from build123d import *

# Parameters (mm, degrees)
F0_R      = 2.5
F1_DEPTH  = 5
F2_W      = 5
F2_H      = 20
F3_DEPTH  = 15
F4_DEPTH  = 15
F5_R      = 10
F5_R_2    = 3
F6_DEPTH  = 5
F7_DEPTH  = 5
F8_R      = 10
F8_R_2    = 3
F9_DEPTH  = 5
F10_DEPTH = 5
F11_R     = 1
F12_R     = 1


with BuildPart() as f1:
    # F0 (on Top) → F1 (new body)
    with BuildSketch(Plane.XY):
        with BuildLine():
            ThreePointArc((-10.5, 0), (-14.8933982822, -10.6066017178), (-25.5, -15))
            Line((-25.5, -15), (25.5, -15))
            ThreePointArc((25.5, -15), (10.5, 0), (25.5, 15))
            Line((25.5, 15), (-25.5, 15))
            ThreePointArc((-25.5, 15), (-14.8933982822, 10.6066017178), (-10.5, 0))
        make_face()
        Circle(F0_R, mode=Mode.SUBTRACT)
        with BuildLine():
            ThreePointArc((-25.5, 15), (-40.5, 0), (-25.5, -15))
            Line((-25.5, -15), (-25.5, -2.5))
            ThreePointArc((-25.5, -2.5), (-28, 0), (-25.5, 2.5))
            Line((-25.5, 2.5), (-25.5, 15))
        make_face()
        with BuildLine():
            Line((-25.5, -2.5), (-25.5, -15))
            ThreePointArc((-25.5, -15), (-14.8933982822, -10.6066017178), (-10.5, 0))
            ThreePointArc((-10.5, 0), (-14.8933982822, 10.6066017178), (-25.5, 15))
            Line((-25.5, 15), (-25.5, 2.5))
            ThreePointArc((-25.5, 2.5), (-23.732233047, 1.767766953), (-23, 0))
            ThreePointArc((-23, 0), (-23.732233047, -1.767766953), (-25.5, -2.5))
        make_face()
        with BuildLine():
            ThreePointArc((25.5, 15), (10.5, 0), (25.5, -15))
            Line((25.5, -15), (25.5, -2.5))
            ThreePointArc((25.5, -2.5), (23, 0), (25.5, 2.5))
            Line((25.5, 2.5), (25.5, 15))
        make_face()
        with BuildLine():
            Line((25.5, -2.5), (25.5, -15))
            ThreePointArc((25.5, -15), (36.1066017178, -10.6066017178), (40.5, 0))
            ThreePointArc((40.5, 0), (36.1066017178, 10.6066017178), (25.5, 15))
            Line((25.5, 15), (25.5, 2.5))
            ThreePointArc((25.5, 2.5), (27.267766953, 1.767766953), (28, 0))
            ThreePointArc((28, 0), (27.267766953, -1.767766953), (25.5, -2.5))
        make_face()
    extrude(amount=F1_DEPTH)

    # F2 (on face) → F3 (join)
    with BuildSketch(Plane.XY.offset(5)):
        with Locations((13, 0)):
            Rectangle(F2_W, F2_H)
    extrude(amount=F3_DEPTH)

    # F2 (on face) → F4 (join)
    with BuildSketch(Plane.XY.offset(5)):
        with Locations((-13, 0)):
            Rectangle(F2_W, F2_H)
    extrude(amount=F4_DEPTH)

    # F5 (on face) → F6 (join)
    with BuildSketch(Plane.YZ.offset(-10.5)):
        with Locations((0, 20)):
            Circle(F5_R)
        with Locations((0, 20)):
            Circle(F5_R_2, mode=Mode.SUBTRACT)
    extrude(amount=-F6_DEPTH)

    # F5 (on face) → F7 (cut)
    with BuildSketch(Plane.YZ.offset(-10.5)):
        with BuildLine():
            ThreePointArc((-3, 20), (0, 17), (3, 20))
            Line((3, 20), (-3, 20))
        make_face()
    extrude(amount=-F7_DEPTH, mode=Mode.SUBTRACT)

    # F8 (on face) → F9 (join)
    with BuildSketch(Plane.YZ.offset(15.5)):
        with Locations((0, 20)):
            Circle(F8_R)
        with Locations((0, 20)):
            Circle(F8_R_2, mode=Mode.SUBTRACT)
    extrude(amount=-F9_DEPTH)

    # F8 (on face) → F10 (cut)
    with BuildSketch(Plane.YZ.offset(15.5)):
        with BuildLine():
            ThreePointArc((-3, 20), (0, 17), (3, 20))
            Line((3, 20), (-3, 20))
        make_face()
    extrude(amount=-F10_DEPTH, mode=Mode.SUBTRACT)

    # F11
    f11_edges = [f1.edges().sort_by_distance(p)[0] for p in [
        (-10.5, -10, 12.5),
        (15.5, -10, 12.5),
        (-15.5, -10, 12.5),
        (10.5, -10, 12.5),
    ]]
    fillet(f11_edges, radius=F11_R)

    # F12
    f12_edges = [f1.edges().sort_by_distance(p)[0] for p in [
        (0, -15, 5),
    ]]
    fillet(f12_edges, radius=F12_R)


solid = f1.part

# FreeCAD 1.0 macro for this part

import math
import FreeCAD as App
import Part
import Sketcher
Q = App.Units.Quantity


def edges_at(feature, points):
    """Names of the edges that pass closest to the given points."""
    edges = feature.Shape.Edges
    near = lambda p: min(range(len(edges)), key=lambda i: edges[i].distToShape(Part.Vertex(*p))[0])
    return sorted({f"Edge{near(p) + 1}" for p in points})

doc = App.newDocument("Part")
body = doc.addObject("PartDesign::Body", "Body")

sketch1 = doc.addObject("Sketcher::SketchObject", "Sketch")
body.addObject(sketch1)
sketch1.AttachmentSupport = (doc.XY_Plane, [""])
sketch1.MapMode = "FlatFace"
sketch1.addGeometry(Part.LineSegment(App.Vector(-25.5, -15, 0), App.Vector(25.5, -15, 0)), False)
sketch1.addGeometry(Part.ArcOfCircle(Part.Circle(App.Vector(25.5, 0, 0), App.Vector(0, 0, 1), 15), math.radians(-90), math.radians(90)), False)
sketch1.addGeometry(Part.LineSegment(App.Vector(25.5, 15, 0), App.Vector(-25.5, 15, 0)), False)
sketch1.addGeometry(Part.ArcOfCircle(Part.Circle(App.Vector(-25.5, 0, 0), App.Vector(0, 0, 1), 15), math.radians(90), math.radians(270)), False)
sketch1.addGeometry(Part.ArcOfCircle(Part.Circle(App.Vector(25.5, 0, 0), App.Vector(0, 0, 1), 2.5), math.radians(90), math.radians(270)), False)
sketch1.addGeometry(Part.ArcOfCircle(Part.Circle(App.Vector(25.5, 0, 0), App.Vector(0, 0, 1), 2.5), math.radians(0), math.radians(90)), False)
sketch1.addGeometry(Part.ArcOfCircle(Part.Circle(App.Vector(25.5, 0, 0), App.Vector(0, 0, 1), 2.5), math.radians(-90), math.radians(0)), False)
sketch1.addGeometry(Part.Circle(App.Vector(0, 0, 0), App.Vector(0, 0, 1), 2.5), False)
sketch1.addGeometry(Part.ArcOfCircle(Part.Circle(App.Vector(-25.5, 0, 0), App.Vector(0, 0, 1), 2.5), math.radians(-90), math.radians(0)), False)
sketch1.addGeometry(Part.ArcOfCircle(Part.Circle(App.Vector(-25.5, 0, 0), App.Vector(0, 0, 1), 2.5), math.radians(90), math.radians(270)), False)
sketch1.addGeometry(Part.ArcOfCircle(Part.Circle(App.Vector(-25.5, 0, 0), App.Vector(0, 0, 1), 2.5), math.radians(0), math.radians(90)), False)
sketch1.addConstraint(Sketcher.Constraint("Tangent", 0, 2, 1, 1))
sketch1.addConstraint(Sketcher.Constraint("Tangent", 1, 2, 2, 1))
sketch1.addConstraint(Sketcher.Constraint("Tangent", 2, 2, 3, 1))
sketch1.addConstraint(Sketcher.Constraint("Tangent", 3, 2, 0, 1))
sketch1.addConstraint(Sketcher.Constraint("Tangent", 4, 1, 5, 2))
sketch1.addConstraint(Sketcher.Constraint("Tangent", 5, 1, 6, 2))
sketch1.addConstraint(Sketcher.Constraint("Tangent", 6, 1, 4, 2))
sketch1.addConstraint(Sketcher.Constraint("Tangent", 8, 1, 9, 2))
sketch1.addConstraint(Sketcher.Constraint("Tangent", 9, 1, 10, 2))
sketch1.addConstraint(Sketcher.Constraint("Tangent", 10, 1, 8, 2))
sketch1.addConstraint(Sketcher.Constraint("Horizontal", 0))
sketch1.addConstraint(Sketcher.Constraint("Horizontal", 2))
sketch1.addConstraint(Sketcher.Constraint("Coincident", 7, 3, -1, 1))
sketch1.addConstraint(Sketcher.Constraint("Coincident", 4, 3, 1, 3))
sketch1.addConstraint(Sketcher.Constraint("Coincident", 8, 3, 3, 3))
sketch1.addConstraint(Sketcher.Constraint("Equal", 6, 7))
sketch1.addConstraint(Sketcher.Constraint("Equal", 7, 8))
sketch1.addConstraint(Sketcher.Constraint("Symmetric", 1, 3, 3, 3, -1, 1))
sketch1.addConstraint(Sketcher.Constraint("PointOnObject", 5, 1, -1))
sketch1.addConstraint(Sketcher.Constraint("PointOnObject", 10, 1, -1))
sketch1.addConstraint(Sketcher.Constraint("Vertical", 1, 2, 4, 1))
sketch1.addConstraint(Sketcher.Constraint("Vertical", 4, 1, 6, 1))
sketch1.addConstraint(Sketcher.Constraint("Vertical", 3, 2, 8, 1))
sketch1.addConstraint(Sketcher.Constraint("Vertical", 8, 1, 9, 1))
sketch1.addConstraint(Sketcher.Constraint("Diameter", 7, Q("5 mm")))
sketch1.addConstraint(Sketcher.Constraint("Radius", 1, Q("15 mm")))
sketch1.addConstraint(Sketcher.Constraint("DistanceX", 0, 1, 0, 2, Q("51 mm")))
pad1 = doc.addObject("PartDesign::Pad", "Pad")
body.addObject(pad1)
pad1.Profile = sketch1
pad1.Length = 5

sketch2 = doc.addObject("Sketcher::SketchObject", "Sketch001")
body.addObject(sketch2)
sketch2.AttachmentSupport = (doc.XY_Plane, [""])
sketch2.MapMode = "FlatFace"
sketch2.AttachmentOffset = App.Placement(App.Vector(0, 0, 5), App.Rotation())
sketch2.addGeometry(Part.LineSegment(App.Vector(10.5, 10, 0), App.Vector(10.5, -10, 0)), False)
sketch2.addGeometry(Part.LineSegment(App.Vector(10.5, -10, 0), App.Vector(15.5, -10, 0)), False)
sketch2.addGeometry(Part.LineSegment(App.Vector(15.5, -10, 0), App.Vector(15.5, 10, 0)), False)
sketch2.addGeometry(Part.LineSegment(App.Vector(15.5, 10, 0), App.Vector(10.5, 10, 0)), False)
sketch2.addConstraint(Sketcher.Constraint("Coincident", 0, 2, 1, 1))
sketch2.addConstraint(Sketcher.Constraint("Coincident", 1, 2, 2, 1))
sketch2.addConstraint(Sketcher.Constraint("Coincident", 2, 2, 3, 1))
sketch2.addConstraint(Sketcher.Constraint("Coincident", 3, 2, 0, 1))
sketch2.addConstraint(Sketcher.Constraint("Vertical", 0))
sketch2.addConstraint(Sketcher.Constraint("Horizontal", 1))
sketch2.addConstraint(Sketcher.Constraint("Vertical", 2))
sketch2.addConstraint(Sketcher.Constraint("Horizontal", 3))
sketch2.addConstraint(Sketcher.Constraint("DistanceX", 1, 1, 1, 2, Q("5 mm")))
sketch2.addConstraint(Sketcher.Constraint("DistanceY", 0, 2, 0, 1, Q("20 mm")))
sketch2.addConstraint(Sketcher.Constraint("DistanceY", 0, 2, -1, 1, Q("10 mm")))
sketch2.addConstraint(Sketcher.Constraint("DistanceX", -1, 1, 0, 2, Q("10.5 mm")))
pad2 = doc.addObject("PartDesign::Pad", "Pad001")
body.addObject(pad2)
pad2.Profile = sketch2
pad2.Length = 15

sketch3 = doc.addObject("Sketcher::SketchObject", "Sketch002")
body.addObject(sketch3)
sketch3.AttachmentSupport = (doc.XY_Plane, [""])
sketch3.MapMode = "FlatFace"
sketch3.AttachmentOffset = App.Placement(App.Vector(0, 0, 5), App.Rotation())
sketch3.addGeometry(Part.LineSegment(App.Vector(-15.5, 10, 0), App.Vector(-15.5, -10, 0)), False)
sketch3.addGeometry(Part.LineSegment(App.Vector(-15.5, -10, 0), App.Vector(-10.5, -10, 0)), False)
sketch3.addGeometry(Part.LineSegment(App.Vector(-10.5, -10, 0), App.Vector(-10.5, 10, 0)), False)
sketch3.addGeometry(Part.LineSegment(App.Vector(-10.5, 10, 0), App.Vector(-15.5, 10, 0)), False)
sketch3.addConstraint(Sketcher.Constraint("Coincident", 0, 2, 1, 1))
sketch3.addConstraint(Sketcher.Constraint("Coincident", 1, 2, 2, 1))
sketch3.addConstraint(Sketcher.Constraint("Coincident", 2, 2, 3, 1))
sketch3.addConstraint(Sketcher.Constraint("Coincident", 3, 2, 0, 1))
sketch3.addConstraint(Sketcher.Constraint("Vertical", 0))
sketch3.addConstraint(Sketcher.Constraint("Horizontal", 1))
sketch3.addConstraint(Sketcher.Constraint("Vertical", 2))
sketch3.addConstraint(Sketcher.Constraint("Horizontal", 3))
sketch3.addConstraint(Sketcher.Constraint("DistanceX", 1, 1, 1, 2, Q("5 mm")))
sketch3.addConstraint(Sketcher.Constraint("DistanceY", 0, 2, 0, 1, Q("20 mm")))
sketch3.addConstraint(Sketcher.Constraint("DistanceY", 0, 2, -1, 1, Q("10 mm")))
sketch3.addConstraint(Sketcher.Constraint("DistanceX", 0, 2, -1, 1, Q("15.5 mm")))
pad3 = doc.addObject("PartDesign::Pad", "Pad002")
body.addObject(pad3)
pad3.Profile = sketch3
pad3.Length = 15

sketch4 = doc.addObject("Sketcher::SketchObject", "Sketch003")
body.addObject(sketch4)
sketch4.AttachmentSupport = (doc.YZ_Plane, [""])
sketch4.MapMode = "FlatFace"
sketch4.AttachmentOffset = App.Placement(App.Vector(0, 0, -10.5), App.Rotation())
sketch4.addGeometry(Part.Circle(App.Vector(0, 20, 0), App.Vector(0, 0, 1), 10), False)
sketch4.addGeometry(Part.Circle(App.Vector(0, 20, 0), App.Vector(0, 0, 1), 3), False)
sketch4.addConstraint(Sketcher.Constraint("Coincident", 1, 3, 0, 3))
sketch4.addConstraint(Sketcher.Constraint("PointOnObject", 0, 3, -2))
sketch4.addConstraint(Sketcher.Constraint("Diameter", 0, Q("20 mm")))
sketch4.addConstraint(Sketcher.Constraint("Diameter", 1, Q("6 mm")))
sketch4.addConstraint(Sketcher.Constraint("DistanceY", -1, 1, 0, 3, Q("20 mm")))
pad4 = doc.addObject("PartDesign::Pad", "Pad003")
body.addObject(pad4)
pad4.Profile = sketch4
pad4.Length = 5
pad4.Reversed = True

sketch5 = doc.addObject("Sketcher::SketchObject", "Sketch004")
body.addObject(sketch5)
sketch5.AttachmentSupport = (doc.YZ_Plane, [""])
sketch5.MapMode = "FlatFace"
sketch5.AttachmentOffset = App.Placement(App.Vector(0, 0, -10.5), App.Rotation())
sketch5.addGeometry(Part.ArcOfCircle(Part.Circle(App.Vector(0, 20, 0), App.Vector(0, 0, 1), 3), math.radians(180), math.radians(360)), False)
sketch5.addGeometry(Part.LineSegment(App.Vector(3, 20, 0), App.Vector(-3, 20, 0)), False)
sketch5.addConstraint(Sketcher.Constraint("Coincident", 0, 1, 1, 2))
sketch5.addConstraint(Sketcher.Constraint("Coincident", 1, 1, 0, 2))
sketch5.addConstraint(Sketcher.Constraint("Horizontal", 1))
sketch5.addConstraint(Sketcher.Constraint("PointOnObject", 0, 3, -2))
sketch5.addConstraint(Sketcher.Constraint("Radius", 0, Q("3 mm")))
sketch5.addConstraint(Sketcher.Constraint("DistanceY", -1, 1, 0, 3, Q("20 mm")))
sketch5.addConstraint(Sketcher.Constraint("DistanceY", -1, 1, 0, 1, Q("20 mm")))
pocket1 = doc.addObject("PartDesign::Pocket", "Pocket")
body.addObject(pocket1)
pocket1.Profile = sketch5
pocket1.Length = 5

sketch6 = doc.addObject("Sketcher::SketchObject", "Sketch005")
body.addObject(sketch6)
sketch6.AttachmentSupport = (doc.YZ_Plane, [""])
sketch6.MapMode = "FlatFace"
sketch6.AttachmentOffset = App.Placement(App.Vector(0, 0, 15.5), App.Rotation())
sketch6.addGeometry(Part.Circle(App.Vector(0, 20, 0), App.Vector(0, 0, 1), 10), False)
sketch6.addGeometry(Part.Circle(App.Vector(0, 20, 0), App.Vector(0, 0, 1), 3), False)
sketch6.addConstraint(Sketcher.Constraint("Coincident", 1, 3, 0, 3))
sketch6.addConstraint(Sketcher.Constraint("PointOnObject", 0, 3, -2))
sketch6.addConstraint(Sketcher.Constraint("Diameter", 0, Q("20 mm")))
sketch6.addConstraint(Sketcher.Constraint("Diameter", 1, Q("6 mm")))
sketch6.addConstraint(Sketcher.Constraint("DistanceY", -1, 1, 0, 3, Q("20 mm")))
pad5 = doc.addObject("PartDesign::Pad", "Pad004")
body.addObject(pad5)
pad5.Profile = sketch6
pad5.Length = 5
pad5.Reversed = True

sketch7 = doc.addObject("Sketcher::SketchObject", "Sketch006")
body.addObject(sketch7)
sketch7.AttachmentSupport = (doc.YZ_Plane, [""])
sketch7.MapMode = "FlatFace"
sketch7.AttachmentOffset = App.Placement(App.Vector(0, 0, 15.5), App.Rotation())
sketch7.addGeometry(Part.ArcOfCircle(Part.Circle(App.Vector(0, 20, 0), App.Vector(0, 0, 1), 3), math.radians(180), math.radians(360)), False)
sketch7.addGeometry(Part.LineSegment(App.Vector(3, 20, 0), App.Vector(-3, 20, 0)), False)
sketch7.addConstraint(Sketcher.Constraint("Coincident", 0, 1, 1, 2))
sketch7.addConstraint(Sketcher.Constraint("Coincident", 1, 1, 0, 2))
sketch7.addConstraint(Sketcher.Constraint("Horizontal", 1))
sketch7.addConstraint(Sketcher.Constraint("PointOnObject", 0, 3, -2))
sketch7.addConstraint(Sketcher.Constraint("Radius", 0, Q("3 mm")))
sketch7.addConstraint(Sketcher.Constraint("DistanceY", -1, 1, 0, 3, Q("20 mm")))
sketch7.addConstraint(Sketcher.Constraint("DistanceY", -1, 1, 0, 1, Q("20 mm")))
pocket2 = doc.addObject("PartDesign::Pocket", "Pocket001")
body.addObject(pocket2)
pocket2.Profile = sketch7
pocket2.Length = 5
doc.recompute()

fillet = doc.addObject("PartDesign::Fillet", "Fillet")
body.addObject(fillet)
fillet.Base = (pocket2, edges_at(pocket2, [
    (-10.5, -10, 12.5),
    (15.5, -10, 12.5),
    (-15.5, -10, 12.5),
    (10.5, -10, 12.5),
]))
fillet.Radius = 1
doc.recompute()

fillet2 = doc.addObject("PartDesign::Fillet", "Fillet001")
body.addObject(fillet2)
fillet2.Base = (fillet, edges_at(fillet, [(0, -15, 5)]))
fillet2.Radius = 1

doc.recompute()
